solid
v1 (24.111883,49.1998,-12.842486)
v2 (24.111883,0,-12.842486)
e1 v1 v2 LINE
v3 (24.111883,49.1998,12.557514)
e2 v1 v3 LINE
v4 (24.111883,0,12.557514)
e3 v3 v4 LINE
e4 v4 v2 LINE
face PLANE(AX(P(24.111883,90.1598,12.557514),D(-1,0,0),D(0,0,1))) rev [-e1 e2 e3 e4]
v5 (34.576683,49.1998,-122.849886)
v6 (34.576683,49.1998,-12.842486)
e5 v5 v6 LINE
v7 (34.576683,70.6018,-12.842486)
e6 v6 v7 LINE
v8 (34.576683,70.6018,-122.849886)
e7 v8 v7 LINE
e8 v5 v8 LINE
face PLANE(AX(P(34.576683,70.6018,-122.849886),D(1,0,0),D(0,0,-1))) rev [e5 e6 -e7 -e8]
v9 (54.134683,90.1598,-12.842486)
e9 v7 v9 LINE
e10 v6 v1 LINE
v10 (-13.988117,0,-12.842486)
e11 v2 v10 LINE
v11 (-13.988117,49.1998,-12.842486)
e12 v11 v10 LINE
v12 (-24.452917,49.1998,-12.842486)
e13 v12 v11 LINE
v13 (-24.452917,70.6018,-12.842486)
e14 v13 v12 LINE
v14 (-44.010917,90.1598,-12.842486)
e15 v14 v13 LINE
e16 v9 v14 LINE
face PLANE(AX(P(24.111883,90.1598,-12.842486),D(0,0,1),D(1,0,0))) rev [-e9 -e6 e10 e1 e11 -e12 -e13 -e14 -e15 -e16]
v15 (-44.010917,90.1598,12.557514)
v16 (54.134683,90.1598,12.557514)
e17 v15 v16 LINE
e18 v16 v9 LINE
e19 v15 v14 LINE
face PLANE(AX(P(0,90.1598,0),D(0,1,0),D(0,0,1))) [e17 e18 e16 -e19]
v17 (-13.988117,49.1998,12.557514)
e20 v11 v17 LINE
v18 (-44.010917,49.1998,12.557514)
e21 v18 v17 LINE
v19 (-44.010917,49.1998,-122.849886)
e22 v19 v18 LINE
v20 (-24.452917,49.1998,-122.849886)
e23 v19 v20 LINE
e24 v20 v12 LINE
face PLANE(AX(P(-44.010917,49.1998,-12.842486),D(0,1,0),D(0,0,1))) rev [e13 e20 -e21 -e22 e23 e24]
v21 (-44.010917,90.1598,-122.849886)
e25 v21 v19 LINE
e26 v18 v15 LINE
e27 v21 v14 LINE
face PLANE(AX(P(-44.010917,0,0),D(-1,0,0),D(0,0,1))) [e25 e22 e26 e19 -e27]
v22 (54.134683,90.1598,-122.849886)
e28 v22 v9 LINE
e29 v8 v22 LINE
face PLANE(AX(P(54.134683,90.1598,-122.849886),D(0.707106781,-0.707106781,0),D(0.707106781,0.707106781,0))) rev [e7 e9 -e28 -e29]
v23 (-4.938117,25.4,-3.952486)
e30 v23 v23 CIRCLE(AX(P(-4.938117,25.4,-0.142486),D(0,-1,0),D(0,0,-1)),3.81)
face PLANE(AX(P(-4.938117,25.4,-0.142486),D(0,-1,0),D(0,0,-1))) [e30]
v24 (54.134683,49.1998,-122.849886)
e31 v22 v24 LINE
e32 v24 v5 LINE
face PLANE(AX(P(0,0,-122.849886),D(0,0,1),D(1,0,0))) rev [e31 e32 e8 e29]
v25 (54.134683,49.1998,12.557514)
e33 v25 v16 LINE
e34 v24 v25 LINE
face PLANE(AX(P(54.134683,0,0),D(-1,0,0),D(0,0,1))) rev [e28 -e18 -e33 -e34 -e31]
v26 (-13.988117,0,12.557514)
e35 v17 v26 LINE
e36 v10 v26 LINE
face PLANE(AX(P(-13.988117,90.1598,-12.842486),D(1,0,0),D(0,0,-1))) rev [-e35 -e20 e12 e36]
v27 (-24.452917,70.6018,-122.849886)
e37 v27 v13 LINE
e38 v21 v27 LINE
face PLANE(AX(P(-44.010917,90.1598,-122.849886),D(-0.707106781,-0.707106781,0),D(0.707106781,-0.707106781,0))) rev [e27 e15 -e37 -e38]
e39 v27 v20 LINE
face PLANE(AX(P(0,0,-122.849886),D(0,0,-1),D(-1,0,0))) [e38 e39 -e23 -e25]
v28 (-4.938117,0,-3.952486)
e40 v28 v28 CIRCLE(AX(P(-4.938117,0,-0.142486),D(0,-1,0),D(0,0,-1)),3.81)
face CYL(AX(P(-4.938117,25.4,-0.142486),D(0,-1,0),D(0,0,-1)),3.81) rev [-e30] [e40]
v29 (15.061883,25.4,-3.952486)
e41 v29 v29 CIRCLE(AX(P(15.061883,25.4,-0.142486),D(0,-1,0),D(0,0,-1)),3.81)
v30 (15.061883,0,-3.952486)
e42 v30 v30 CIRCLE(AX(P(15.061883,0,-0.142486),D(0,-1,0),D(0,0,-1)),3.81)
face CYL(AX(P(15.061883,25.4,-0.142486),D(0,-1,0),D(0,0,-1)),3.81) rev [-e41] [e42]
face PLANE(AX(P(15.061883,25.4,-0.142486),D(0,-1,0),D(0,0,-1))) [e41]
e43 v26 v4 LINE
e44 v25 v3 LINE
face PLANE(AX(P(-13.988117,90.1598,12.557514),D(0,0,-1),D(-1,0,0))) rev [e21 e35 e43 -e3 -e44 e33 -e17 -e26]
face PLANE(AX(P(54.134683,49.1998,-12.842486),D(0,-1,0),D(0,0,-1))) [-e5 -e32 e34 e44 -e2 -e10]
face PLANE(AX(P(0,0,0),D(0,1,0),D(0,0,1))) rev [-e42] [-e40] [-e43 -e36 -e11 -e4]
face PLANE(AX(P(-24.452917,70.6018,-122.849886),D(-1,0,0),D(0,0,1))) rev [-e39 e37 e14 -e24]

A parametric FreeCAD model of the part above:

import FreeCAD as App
import Part
import Sketcher

V = App.Vector
Q = App.Units.Quantity


def add_polygon(sketch, points):
    """Adds a closed chain of lines whose ends are joined by coincident constraints."""
    first, n = sketch.GeometryCount, len(points)
    for a, b in zip(points, points[1:] + points[:1]):
        sketch.addGeometry(Part.LineSegment(App.Vector(*a, 0), App.Vector(*b, 0)), False)
    for i in range(n):
        sketch.addConstraint(Sketcher.Constraint("Coincident", first + i, 2, first + (i + 1) % n, 1))

doc = App.newDocument("Part")
body = doc.addObject("PartDesign::Body", "Body")

sketch1 = doc.addObject("Sketcher::SketchObject", "Sketch")
body.addObject(sketch1)
sketch1.AttachmentSupport = (doc.XZ_Plane, [""])
sketch1.MapMode = "FlatFace"
add_polygon(sketch1, [(-14, -13), (-14, 13), (24, 13), (24, -13)])
sketch1.addConstraint([
    Sketcher.Constraint("Vertical", 0),
    Sketcher.Constraint("Horizontal", 1),
    Sketcher.Constraint("Vertical", 2),
    Sketcher.Constraint("Horizontal", 3),
    Sketcher.Constraint("DistanceY", 0, 1, 0, 2, Q("1 in")),
    Sketcher.Constraint("DistanceX", 1, 1, 1, 2, Q("1.5 in")),
    Sketcher.Constraint("DistanceX", 0, 2, -1, 1, 13.988117),
    Sketcher.Constraint("DistanceY", -1, 1, 0, 2, 12.557514),
])
pad1 = doc.addObject("PartDesign::Pad", "Pad")
body.addObject(pad1)
pad1.Profile = sketch1
pad1.Length = 90.1598
pad1.Reversed = True

sketch2 = doc.addObject("Sketcher::SketchObject", "Sketch001")
body.addObject(sketch2)
sketch2.AttachmentSupport = (doc.YZ_Plane, [""])
sketch2.MapMode = "FlatFace"
sketch2.AttachmentOffset = App.Placement(V(0, 0, 24.111883), App.Rotation())
add_polygon(sketch2, [(90, 13), (49, 13), (49, -13), (90, -13)])
sketch2.addConstraint([
    Sketcher.Constraint("Horizontal", 0),
    Sketcher.Constraint("Vertical", 1),
    Sketcher.Constraint("Horizontal", 2),
    Sketcher.Constraint("Vertical", 3),
    Sketcher.Constraint("DistanceY", 1, 2, 1, 1, Q("1 in")),
    Sketcher.Constraint("DistanceX", -1, 1, 0, 2, Q("1.937 in")),
    Sketcher.Constraint("DistanceX", 0, 2, 0, 1, 40.96),
    Sketcher.Constraint("DistanceY", -1, 1, 0, 2, 12.557514),
])
pad2 = doc.addObject("PartDesign::Pad", "Pad001")
body.addObject(pad2)
pad2.Profile = sketch2
pad2.Length = Q("1.182 in")

sketch3 = doc.addObject("Sketcher::SketchObject", "Sketch002")
body.addObject(sketch3)
sketch3.AttachmentSupport = (doc.YZ_Plane, [""])
sketch3.MapMode = "FlatFace"
sketch3.AttachmentOffset = App.Placement(V(0, 0, -13.988117), App.Rotation())
add_polygon(sketch3, [(90, -13), (49, -13), (49, 13), (90, 13)])
sketch3.addConstraint([
    Sketcher.Constraint("Horizontal", 0),
    Sketcher.Constraint("Vertical", 1),
    Sketcher.Constraint("Horizontal", 2),
    Sketcher.Constraint("Vertical", 3),
    Sketcher.Constraint("DistanceY", 1, 1, 1, 2, Q("1 in")),
    Sketcher.Constraint("DistanceX", -1, 1, 0, 2, Q("1.937 in")),
    Sketcher.Constraint("DistanceX", 0, 2, 0, 1, 40.96),
    Sketcher.Constraint("DistanceY", 0, 2, -1, 1, 12.842486),
])
pad3 = doc.addObject("PartDesign::Pad", "Pad002")
body.addObject(pad3)
pad3.Profile = sketch3
pad3.Length = Q("1.182 in")
pad3.Reversed = True

sketch4 = doc.addObject("Sketcher::SketchObject", "Sketch003")
body.addObject(sketch4)
sketch4.AttachmentSupport = (doc.XY_Plane, [""])
sketch4.MapMode = "FlatFace"
sketch4.AttachmentOffset = App.Placement(V(0, 0, -12.842486), App.Rotation())
add_polygon(sketch4, [(54, 90), (54, 49), (35, 49), (35, 71)])
sketch4.addConstraint([
    Sketcher.Constraint("Vertical", 0),
    Sketcher.Constraint("Horizontal", 1),
    Sketcher.Constraint("Vertical", 2),
    Sketcher.Constraint("Angle", 3, Q("45 deg")),
    Sketcher.Constraint("DistanceX", 1, 2, 1, 1, Q("0.77 in")),
    Sketcher.Constraint("DistanceY", -1, 1, 0, 2, Q("1.937 in")),
    Sketcher.Constraint("DistanceY", 0, 2, 0, 1, 40.96),
    Sketcher.Constraint("DistanceX", -1, 1, 0, 2, 54.134683),
])
pad4 = doc.addObject("PartDesign::Pad", "Pad003")
body.addObject(pad4)
pad4.Profile = sketch4
pad4.Length = Q("4.331 in")
pad4.Reversed = True

sketch5 = doc.addObject("Sketcher::SketchObject", "Sketch004")
body.addObject(sketch5)
sketch5.AttachmentSupport = (doc.XY_Plane, [""])
sketch5.MapMode = "FlatFace"
sketch5.AttachmentOffset = App.Placement(V(0, 0, -12.842486), App.Rotation())
add_polygon(sketch5, [(-44, 49), (-44, 90), (-24, 71), (-24, 49)])
sketch5.addConstraint([
    Sketcher.Constraint("Vertical", 0),
    Sketcher.Constraint("Vertical", 2),
    Sketcher.Constraint("Horizontal", 3),
    Sketcher.Constraint("Angle", 1, Q("-45 deg")),
    Sketcher.Constraint("DistanceX", 3, 2, 3, 1, Q("0.77 in")),
    Sketcher.Constraint("DistanceY", -1, 1, 2, 2, Q("1.937 in")),
    Sketcher.Constraint("DistanceY", 0, 1, 0, 2, 40.96),
    Sketcher.Constraint("DistanceX", 0, 2, -1, 1, 44.010917),
])
pad5 = doc.addObject("PartDesign::Pad", "Pad004")
body.addObject(pad5)
pad5.Profile = sketch5
pad5.Length = Q("4.331 in")
pad5.Reversed = True

sketch6 = doc.addObject("Sketcher::SketchObject", "Sketch005")
body.addObject(sketch6)
sketch6.AttachmentSupport = (doc.XZ_Plane, [""])
sketch6.MapMode = "FlatFace"
sketch6.addGeometry([
    Part.Circle(V(-4.9, -0.1, 0), V(0, 0, 1), 3.8),
    Part.Circle(V(15.1, -0.1, 0), V(0, 0, 1), 3.8),
], False)
sketch6.addConstraint([
    Sketcher.Constraint("Equal", 0, 1),
    Sketcher.Constraint("Horizontal", 0, 3, 1, 3),
    Sketcher.Constraint("Diameter", 0, Q("0.3 in")),
    Sketcher.Constraint("DistanceX", 0, 3, 1, 3, 20.0),
    Sketcher.Constraint("DistanceX", 0, 3, -1, 1, 4.938117),
    Sketcher.Constraint("DistanceY", 0, 3, -1, 1, 0.142486),
])
pocket1 = doc.addObject("PartDesign::Pocket", "Pocket")
body.addObject(pocket1)
pocket1.Profile = sketch6
pocket1.Length = Q("1 in")

doc.recompute()
